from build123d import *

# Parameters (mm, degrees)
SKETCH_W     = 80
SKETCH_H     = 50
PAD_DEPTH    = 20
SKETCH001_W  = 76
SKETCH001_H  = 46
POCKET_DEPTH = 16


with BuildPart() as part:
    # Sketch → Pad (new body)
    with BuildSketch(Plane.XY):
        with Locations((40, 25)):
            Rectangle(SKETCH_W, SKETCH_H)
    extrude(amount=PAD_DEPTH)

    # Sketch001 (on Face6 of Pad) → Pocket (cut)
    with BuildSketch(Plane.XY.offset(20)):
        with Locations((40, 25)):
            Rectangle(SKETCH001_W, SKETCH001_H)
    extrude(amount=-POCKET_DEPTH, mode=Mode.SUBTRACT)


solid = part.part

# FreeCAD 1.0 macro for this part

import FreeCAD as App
import Part
import Sketcher
from FreeCAD import Vector


def add_polygon(sketch, points):
    """Adds a closed chain of lines whose ends are joined by coincident constraints."""
    first, n = sketch.GeometryCount, len(points)
    for a, b in zip(points, points[1:] + points[:1]):
        sketch.addGeometry(Part.LineSegment(App.Vector(*a, 0), App.Vector(*b, 0)), False)
    for i in range(n):
        sketch.addConstraint(Sketcher.Constraint("Coincident", first + i, 2, first + (i + 1) % n, 1))

doc = App.newDocument("Part")
body = doc.addObject("PartDesign::Body", "Body")

sketch1 = doc.addObject("Sketcher::SketchObject", "Sketch")
body.addObject(sketch1)
sketch1.AttachmentSupport = (doc.XY_Plane, [""])
sketch1.MapMode = "FlatFace"
add_polygon(sketch1, [(0, 50), (0, 0), (80, 0), (80, 50)])
sketch1.addConstraint([
    Sketcher.Constraint("Vertical", 0),
    Sketcher.Constraint("Horizontal", 1),
    Sketcher.Constraint("Vertical", 2),
    Sketcher.Constraint("Horizontal", 3),
    Sketcher.Constraint("Coincident", 0, 2, -1, 1),
    Sketcher.Constraint("DistanceX", 1, 1, 1, 2, 80.0),
    Sketcher.Constraint("DistanceY", 0, 2, 0, 1, 50.0),
])
pad1 = doc.addObject("PartDesign::Pad", "Pad")
body.addObject(pad1)
pad1.Profile = sketch1
pad1.Length = 20

sketch2 = doc.addObject("Sketcher::SketchObject", "Sketch001")
body.addObject(sketch2)
sketch2.AttachmentSupport = (doc.XY_Plane, [""])
sketch2.MapMode = "FlatFace"
sketch2.AttachmentOffset = App.Placement(Vector(0, 0, 20), App.Rotation())
add_polygon(sketch2, [(2, 48), (2, 2), (78, 2), (78, 48)])
sketch2.addConstraint([
    Sketcher.Constraint("Vertical", 0),
    Sketcher.Constraint("Horizontal", 1),
    Sketcher.Constraint("Vertical", 2),
    Sketcher.Constraint("Horizontal", 3),
    Sketcher.Constraint("DistanceX", 1, 1, 1, 2, 76.0),
    Sketcher.Constraint("DistanceY", 0, 2, 0, 1, 46.0),
    Sketcher.Constraint("DistanceX", -1, 1, 0, 2, 2.0),
    Sketcher.Constraint("DistanceY", -1, 1, 0, 2, 2.0),
])
pocket1 = doc.addObject("PartDesign::Pocket", "Pocket")
body.addObject(pocket1)
pocket1.Profile = sketch2
pocket1.Length = 16

doc.recompute()
